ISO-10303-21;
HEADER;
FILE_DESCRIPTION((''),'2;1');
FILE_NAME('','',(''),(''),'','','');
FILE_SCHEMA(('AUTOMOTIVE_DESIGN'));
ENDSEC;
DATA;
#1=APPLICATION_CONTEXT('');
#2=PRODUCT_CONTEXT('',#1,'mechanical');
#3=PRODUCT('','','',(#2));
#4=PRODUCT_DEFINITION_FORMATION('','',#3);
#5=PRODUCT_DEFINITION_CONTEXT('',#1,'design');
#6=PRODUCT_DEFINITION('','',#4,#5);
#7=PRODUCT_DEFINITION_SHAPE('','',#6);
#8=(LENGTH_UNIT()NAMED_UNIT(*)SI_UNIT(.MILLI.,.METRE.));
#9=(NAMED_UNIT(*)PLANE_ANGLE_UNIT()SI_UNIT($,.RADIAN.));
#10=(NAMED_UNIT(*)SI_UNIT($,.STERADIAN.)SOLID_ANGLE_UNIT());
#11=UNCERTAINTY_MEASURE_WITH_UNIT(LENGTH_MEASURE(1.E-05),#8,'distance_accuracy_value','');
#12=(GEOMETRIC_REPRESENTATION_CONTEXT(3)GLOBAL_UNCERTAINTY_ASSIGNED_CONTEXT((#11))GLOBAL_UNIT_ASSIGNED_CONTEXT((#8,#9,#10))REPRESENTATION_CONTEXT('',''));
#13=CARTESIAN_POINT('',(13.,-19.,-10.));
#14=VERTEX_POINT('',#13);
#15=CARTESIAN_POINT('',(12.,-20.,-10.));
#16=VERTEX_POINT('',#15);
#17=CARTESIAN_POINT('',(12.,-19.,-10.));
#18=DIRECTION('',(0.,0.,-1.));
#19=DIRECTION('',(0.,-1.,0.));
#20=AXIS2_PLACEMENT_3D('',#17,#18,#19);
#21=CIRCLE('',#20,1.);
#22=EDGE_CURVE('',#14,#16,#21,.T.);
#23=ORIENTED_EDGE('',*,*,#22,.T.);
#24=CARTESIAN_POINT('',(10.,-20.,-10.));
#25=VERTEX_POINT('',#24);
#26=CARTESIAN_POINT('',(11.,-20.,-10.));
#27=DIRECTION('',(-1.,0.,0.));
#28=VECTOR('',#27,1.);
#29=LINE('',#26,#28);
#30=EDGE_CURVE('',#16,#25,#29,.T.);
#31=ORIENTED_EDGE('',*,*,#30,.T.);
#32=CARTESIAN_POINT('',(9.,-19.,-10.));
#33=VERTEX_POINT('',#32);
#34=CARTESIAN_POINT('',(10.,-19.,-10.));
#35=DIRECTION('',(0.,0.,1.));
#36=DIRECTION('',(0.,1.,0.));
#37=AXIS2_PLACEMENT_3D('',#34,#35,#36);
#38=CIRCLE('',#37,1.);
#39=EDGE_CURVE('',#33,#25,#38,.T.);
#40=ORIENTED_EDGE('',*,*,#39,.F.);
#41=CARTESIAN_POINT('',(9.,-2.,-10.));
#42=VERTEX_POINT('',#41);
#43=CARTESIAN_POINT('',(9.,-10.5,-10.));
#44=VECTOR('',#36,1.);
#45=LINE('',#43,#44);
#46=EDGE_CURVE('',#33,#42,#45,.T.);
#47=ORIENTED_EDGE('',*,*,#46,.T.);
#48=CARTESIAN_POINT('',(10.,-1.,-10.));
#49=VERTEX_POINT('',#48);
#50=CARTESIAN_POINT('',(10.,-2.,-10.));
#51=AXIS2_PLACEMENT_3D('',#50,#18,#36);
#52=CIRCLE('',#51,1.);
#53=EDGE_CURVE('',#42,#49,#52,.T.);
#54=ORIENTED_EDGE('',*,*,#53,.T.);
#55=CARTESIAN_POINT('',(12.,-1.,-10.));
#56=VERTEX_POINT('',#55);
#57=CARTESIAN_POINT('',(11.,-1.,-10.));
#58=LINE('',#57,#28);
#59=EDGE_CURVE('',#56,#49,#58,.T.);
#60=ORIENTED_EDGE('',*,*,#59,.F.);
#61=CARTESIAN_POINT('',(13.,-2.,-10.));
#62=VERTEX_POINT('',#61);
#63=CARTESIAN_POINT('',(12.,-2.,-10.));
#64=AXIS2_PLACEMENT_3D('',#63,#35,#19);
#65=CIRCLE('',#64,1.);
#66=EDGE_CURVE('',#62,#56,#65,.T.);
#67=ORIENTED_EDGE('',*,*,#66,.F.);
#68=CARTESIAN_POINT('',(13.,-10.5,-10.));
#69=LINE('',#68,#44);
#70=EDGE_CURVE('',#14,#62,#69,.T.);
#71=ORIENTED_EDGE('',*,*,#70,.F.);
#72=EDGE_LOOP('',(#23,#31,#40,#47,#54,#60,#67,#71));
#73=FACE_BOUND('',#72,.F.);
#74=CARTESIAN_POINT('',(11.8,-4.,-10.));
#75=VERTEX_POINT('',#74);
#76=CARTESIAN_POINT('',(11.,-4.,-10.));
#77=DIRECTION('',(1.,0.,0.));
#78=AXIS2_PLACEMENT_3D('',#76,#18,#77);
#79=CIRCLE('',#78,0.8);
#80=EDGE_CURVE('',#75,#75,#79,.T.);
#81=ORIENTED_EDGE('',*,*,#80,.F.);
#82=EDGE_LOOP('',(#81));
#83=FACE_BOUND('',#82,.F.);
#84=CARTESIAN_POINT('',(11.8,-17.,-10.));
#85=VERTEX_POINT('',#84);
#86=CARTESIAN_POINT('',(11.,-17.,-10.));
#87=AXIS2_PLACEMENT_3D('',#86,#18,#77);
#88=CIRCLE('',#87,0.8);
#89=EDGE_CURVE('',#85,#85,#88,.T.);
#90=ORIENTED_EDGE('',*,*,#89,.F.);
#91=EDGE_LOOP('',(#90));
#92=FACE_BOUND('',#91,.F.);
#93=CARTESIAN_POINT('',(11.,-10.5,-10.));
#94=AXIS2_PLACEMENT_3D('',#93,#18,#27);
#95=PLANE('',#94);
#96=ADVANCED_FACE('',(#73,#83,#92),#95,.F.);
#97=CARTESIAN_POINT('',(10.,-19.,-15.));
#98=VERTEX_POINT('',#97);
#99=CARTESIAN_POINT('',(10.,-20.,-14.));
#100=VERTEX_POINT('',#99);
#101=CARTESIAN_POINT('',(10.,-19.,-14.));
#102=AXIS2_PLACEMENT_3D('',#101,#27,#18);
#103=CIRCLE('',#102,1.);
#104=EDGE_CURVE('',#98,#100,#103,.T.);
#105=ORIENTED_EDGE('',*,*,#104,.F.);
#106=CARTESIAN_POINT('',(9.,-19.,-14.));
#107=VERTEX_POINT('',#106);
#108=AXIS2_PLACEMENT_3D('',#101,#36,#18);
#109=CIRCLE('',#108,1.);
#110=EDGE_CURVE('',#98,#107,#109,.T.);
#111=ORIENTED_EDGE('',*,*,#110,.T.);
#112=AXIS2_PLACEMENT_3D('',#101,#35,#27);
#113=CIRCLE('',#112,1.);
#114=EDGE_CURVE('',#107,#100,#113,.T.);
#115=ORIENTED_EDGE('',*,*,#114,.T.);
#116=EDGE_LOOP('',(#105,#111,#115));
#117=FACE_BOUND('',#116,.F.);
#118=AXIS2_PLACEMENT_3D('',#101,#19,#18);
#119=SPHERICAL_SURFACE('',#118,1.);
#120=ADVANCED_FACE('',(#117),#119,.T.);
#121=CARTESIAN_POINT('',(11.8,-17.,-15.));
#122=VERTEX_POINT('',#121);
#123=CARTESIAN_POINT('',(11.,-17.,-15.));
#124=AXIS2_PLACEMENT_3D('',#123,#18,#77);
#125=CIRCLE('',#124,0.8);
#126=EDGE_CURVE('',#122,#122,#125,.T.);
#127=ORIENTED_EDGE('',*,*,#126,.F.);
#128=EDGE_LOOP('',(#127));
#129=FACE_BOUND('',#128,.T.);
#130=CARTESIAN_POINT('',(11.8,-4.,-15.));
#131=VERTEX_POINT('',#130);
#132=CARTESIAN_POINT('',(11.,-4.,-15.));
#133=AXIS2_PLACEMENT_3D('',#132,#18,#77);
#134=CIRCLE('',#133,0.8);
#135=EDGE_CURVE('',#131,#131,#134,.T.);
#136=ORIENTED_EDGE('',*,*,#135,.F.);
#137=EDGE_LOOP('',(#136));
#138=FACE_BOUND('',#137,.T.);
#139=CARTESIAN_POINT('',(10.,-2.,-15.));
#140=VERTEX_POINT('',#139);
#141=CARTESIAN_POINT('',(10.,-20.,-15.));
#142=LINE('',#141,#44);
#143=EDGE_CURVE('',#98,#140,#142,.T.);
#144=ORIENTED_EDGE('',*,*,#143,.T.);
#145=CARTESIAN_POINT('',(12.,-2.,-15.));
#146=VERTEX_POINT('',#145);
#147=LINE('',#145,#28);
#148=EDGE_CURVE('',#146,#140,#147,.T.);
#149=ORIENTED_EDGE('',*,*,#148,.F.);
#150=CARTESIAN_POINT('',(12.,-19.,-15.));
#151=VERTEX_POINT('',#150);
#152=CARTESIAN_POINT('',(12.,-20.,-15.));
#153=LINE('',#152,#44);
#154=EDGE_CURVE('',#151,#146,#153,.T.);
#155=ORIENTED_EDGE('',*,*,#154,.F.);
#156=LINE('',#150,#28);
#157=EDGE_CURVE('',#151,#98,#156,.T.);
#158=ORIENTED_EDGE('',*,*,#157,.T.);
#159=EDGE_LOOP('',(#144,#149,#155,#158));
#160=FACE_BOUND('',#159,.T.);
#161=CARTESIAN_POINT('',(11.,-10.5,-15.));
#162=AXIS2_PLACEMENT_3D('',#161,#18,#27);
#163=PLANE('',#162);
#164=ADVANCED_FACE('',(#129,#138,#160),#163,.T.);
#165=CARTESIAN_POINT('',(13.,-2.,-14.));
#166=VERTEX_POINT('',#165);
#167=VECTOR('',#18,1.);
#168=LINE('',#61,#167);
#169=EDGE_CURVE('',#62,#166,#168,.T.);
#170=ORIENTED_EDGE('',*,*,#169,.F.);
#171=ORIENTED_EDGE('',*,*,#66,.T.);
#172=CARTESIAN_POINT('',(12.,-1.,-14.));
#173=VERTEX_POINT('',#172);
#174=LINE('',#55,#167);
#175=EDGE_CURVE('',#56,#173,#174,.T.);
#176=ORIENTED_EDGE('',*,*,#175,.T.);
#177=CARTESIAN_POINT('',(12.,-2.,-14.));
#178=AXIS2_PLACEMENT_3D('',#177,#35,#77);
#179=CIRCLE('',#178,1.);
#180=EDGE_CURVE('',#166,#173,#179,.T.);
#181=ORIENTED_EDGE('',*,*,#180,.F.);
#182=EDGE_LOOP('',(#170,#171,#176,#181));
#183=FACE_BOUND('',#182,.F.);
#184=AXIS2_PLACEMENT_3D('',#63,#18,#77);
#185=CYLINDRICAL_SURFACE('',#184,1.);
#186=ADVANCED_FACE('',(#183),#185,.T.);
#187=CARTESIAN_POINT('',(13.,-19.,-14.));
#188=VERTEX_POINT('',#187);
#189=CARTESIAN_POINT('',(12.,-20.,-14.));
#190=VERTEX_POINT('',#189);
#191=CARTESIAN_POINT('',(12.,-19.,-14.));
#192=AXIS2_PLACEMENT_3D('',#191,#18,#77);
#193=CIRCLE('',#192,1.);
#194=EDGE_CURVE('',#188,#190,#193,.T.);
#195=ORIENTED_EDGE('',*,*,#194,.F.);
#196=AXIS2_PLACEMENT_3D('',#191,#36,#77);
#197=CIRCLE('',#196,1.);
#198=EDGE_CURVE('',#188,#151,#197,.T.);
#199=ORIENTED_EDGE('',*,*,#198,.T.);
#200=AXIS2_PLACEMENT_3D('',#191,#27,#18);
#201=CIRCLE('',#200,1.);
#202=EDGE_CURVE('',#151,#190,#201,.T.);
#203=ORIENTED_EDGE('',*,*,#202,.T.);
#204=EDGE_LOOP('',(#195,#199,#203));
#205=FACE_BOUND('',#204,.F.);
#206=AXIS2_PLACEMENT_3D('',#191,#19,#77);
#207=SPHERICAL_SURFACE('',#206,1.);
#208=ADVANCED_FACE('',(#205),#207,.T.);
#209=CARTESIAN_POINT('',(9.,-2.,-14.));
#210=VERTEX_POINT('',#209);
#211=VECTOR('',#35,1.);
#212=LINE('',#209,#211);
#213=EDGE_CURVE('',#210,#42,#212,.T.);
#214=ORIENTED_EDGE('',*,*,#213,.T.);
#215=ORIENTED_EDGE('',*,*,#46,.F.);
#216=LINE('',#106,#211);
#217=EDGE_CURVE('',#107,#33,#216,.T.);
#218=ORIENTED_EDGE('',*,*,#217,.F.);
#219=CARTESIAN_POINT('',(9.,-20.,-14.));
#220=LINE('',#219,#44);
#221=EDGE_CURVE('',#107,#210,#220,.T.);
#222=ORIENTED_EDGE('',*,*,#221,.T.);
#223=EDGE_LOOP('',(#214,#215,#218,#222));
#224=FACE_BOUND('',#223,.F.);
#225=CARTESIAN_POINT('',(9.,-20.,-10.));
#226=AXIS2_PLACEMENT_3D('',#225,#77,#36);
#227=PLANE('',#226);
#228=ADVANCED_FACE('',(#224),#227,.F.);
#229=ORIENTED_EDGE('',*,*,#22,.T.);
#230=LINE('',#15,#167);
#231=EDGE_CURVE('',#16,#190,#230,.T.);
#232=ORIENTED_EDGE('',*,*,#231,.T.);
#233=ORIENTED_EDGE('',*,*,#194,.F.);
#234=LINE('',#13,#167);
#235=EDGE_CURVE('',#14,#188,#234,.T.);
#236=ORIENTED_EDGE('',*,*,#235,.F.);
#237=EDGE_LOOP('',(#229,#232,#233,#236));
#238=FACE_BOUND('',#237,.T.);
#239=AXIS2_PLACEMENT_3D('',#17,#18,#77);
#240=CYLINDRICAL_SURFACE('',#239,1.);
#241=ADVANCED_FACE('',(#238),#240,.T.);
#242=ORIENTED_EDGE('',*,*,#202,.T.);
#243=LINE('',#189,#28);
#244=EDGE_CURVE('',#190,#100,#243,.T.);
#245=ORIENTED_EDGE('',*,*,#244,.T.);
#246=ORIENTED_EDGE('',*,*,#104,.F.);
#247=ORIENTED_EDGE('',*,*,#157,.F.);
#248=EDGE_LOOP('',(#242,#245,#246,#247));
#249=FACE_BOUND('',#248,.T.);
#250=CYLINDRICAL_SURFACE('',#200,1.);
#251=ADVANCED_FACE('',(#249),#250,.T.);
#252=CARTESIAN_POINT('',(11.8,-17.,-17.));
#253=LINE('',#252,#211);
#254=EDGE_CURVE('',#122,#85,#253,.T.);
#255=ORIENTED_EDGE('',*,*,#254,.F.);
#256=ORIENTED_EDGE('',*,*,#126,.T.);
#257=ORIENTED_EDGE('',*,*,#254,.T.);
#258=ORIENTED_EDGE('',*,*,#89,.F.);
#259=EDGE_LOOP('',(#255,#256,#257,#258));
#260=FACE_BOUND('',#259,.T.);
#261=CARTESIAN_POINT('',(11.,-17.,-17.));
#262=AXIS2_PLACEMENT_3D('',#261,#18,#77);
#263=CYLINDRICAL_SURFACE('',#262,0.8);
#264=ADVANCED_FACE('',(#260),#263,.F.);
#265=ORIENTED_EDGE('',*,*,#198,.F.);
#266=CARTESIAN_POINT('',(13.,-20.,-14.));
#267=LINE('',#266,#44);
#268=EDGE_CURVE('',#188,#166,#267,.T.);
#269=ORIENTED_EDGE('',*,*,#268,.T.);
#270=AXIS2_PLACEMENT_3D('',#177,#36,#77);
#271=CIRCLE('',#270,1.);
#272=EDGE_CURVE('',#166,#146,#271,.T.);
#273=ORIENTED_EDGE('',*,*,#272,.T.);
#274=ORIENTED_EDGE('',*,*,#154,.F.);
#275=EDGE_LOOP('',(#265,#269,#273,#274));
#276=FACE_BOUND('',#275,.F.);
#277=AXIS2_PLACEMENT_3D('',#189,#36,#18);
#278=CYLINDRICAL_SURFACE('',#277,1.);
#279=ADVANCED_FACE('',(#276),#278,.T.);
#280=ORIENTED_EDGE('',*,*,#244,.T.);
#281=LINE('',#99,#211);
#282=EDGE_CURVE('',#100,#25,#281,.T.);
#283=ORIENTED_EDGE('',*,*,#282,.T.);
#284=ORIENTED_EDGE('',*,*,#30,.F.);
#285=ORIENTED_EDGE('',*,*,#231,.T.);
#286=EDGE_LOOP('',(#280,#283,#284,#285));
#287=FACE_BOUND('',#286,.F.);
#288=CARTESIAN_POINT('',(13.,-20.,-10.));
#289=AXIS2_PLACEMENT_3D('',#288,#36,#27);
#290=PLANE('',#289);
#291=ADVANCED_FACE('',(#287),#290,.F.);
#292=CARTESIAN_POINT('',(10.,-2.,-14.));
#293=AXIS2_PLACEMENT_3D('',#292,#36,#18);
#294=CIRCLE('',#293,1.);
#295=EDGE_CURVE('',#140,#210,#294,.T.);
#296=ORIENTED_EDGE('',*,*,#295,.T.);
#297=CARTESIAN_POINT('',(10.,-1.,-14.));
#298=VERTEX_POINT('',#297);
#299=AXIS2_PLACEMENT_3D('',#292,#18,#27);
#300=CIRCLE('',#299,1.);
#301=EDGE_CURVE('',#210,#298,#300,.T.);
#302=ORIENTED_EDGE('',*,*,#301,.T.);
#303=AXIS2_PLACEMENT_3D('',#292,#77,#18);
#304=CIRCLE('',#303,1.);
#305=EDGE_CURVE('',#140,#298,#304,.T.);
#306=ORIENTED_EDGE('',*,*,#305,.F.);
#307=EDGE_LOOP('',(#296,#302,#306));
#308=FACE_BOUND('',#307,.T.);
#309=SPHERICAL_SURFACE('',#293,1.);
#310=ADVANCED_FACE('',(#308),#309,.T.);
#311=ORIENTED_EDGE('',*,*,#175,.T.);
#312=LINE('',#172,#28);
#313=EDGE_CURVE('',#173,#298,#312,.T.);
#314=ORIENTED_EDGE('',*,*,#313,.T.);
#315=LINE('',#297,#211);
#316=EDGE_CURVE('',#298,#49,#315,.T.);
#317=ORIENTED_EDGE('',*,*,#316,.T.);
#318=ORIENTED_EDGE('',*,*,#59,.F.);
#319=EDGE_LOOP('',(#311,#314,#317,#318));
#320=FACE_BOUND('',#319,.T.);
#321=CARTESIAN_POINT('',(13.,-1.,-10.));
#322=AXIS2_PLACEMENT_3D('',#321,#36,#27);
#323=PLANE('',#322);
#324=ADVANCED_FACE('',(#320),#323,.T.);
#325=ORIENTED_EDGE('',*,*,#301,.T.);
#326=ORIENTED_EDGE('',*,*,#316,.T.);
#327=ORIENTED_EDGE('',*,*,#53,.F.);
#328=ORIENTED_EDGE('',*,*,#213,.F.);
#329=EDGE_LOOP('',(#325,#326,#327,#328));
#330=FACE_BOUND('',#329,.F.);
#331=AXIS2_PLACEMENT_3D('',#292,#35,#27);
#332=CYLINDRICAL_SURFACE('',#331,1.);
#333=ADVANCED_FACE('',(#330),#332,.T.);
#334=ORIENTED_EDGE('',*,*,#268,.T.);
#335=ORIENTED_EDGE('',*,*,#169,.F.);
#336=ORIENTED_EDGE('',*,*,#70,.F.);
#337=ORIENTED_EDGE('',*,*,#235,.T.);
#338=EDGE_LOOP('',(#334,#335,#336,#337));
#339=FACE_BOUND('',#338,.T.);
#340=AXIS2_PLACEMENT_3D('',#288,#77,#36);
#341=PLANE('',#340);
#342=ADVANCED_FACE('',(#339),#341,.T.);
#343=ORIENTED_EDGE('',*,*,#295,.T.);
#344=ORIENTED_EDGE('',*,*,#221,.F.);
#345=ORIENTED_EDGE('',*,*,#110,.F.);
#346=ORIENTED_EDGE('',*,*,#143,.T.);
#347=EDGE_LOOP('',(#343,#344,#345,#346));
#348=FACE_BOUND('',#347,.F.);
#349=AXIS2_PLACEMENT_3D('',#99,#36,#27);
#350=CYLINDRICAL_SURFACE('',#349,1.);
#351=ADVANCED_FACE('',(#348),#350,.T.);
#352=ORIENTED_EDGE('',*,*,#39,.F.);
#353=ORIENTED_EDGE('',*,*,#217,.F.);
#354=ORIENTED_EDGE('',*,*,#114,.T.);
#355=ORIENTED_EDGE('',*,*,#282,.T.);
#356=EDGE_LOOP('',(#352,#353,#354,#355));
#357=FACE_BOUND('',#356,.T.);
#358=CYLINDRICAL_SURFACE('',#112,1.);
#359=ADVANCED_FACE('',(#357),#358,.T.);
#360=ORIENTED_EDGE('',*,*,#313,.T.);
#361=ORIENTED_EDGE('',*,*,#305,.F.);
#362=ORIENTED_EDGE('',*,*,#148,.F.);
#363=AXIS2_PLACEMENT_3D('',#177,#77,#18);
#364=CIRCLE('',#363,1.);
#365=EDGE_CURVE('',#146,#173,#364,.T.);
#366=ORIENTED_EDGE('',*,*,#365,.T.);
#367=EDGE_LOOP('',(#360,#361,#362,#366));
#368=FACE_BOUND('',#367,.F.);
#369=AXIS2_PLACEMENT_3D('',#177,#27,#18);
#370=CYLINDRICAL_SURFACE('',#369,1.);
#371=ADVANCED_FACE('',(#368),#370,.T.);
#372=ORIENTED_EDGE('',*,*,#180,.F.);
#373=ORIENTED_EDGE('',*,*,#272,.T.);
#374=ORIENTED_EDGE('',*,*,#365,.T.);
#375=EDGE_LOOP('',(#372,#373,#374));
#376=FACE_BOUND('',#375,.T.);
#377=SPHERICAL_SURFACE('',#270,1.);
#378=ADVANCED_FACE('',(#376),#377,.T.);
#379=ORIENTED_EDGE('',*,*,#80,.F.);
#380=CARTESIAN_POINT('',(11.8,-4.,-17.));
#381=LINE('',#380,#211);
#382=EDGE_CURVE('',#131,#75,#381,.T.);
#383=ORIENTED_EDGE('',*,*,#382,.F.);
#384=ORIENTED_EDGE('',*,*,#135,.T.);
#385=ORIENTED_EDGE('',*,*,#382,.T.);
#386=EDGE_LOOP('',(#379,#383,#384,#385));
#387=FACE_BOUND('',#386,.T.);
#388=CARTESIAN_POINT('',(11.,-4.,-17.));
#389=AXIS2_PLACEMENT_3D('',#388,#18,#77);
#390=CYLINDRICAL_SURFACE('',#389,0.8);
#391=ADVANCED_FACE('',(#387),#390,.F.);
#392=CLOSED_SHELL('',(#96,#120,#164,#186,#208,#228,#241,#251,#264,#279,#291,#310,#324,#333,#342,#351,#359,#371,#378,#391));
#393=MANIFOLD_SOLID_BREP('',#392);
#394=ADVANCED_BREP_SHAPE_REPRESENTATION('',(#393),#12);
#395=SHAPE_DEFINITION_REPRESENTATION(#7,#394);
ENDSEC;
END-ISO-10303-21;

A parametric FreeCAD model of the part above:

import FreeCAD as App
import Part
import Sketcher
from FreeCAD import Vector


def edges_at(feature, points):
    """Names of the edges that pass closest to the given points."""
    edges = feature.Shape.Edges
    near = lambda p: min(range(len(edges)), key=lambda i: edges[i].distToShape(Part.Vertex(*p))[0])
    return sorted({f"Edge{near(p) + 1}" for p in points})


def add_polygon(sketch, points):
    """Adds a closed chain of lines whose ends are joined by coincident constraints."""
    first, n = sketch.GeometryCount, len(points)
    for a, b in zip(points, points[1:] + points[:1]):
        sketch.addGeometry(Part.LineSegment(App.Vector(*a, 0), App.Vector(*b, 0)), False)
    for i in range(n):
        sketch.addConstraint(Sketcher.Constraint("Coincident", first + i, 2, first + (i + 1) % n, 1))

doc = App.newDocument("Part")
params = doc.addObject("Spreadsheet::Sheet", "Params")
for row, (alias, value) in enumerate([
    ("sketch1_diameter", "1.6 mm"),
    ("pad1_length", "10 mm"),
    ("sketch2_diameter", "1.6 mm"),
    ("pad2_length", "10 mm"),
    ("sketch3_diameter", "1.5 mm"),
    ("pad3_length", "10 mm"),
    ("sketch4_diameter", "1.5 mm"),
    ("pad4_length", "10 mm"),
    ("sketch5_width", "4 mm"),
    ("sketch5_height", "19 mm"),
    ("pad5_length", "5 mm"),
    ("fillet_radius", "1 mm"),
    ("fillet2_radius", "1 mm"),
    ("fillet3_radius", "1 mm"),
    ("fillet4_radius", "1 mm"),
], start=1):
    params.set(f"A{row}", alias)
    params.set(f"B{row}", "=" + value)
    params.setAlias(f"B{row}", alias)

body = doc.addObject("PartDesign::Body", "Body")

sketch1 = doc.addObject("Sketcher::SketchObject", "Sketch")
body.addObject(sketch1)
sketch1.AttachmentSupport = (doc.XY_Plane, [""])
sketch1.MapMode = "FlatFace"
sketch1.AttachmentOffset = App.Placement(Vector(0, 0, -17), App.Rotation())
sketch1.addGeometry(Part.Circle(Vector(11, -17, 0), Vector(0, 0, 1), 0.8), False)
sketch1.addConstraint(Sketcher.Constraint("Diameter", 0, 1.6))
sketch1.addConstraint(Sketcher.Constraint("DistanceX", -1, 1, 0, 3, 11.0))
sketch1.addConstraint(Sketcher.Constraint("DistanceY", 0, 3, -1, 1, 17.0))
sketch1.setExpression("Constraints[0]", "Params.sketch1_diameter")
pad1 = doc.addObject("PartDesign::Pad", "Pad")
body.addObject(pad1)
pad1.Profile = sketch1
pad1.setExpression("Length", "Params.pad1_length")
body2 = doc.addObject("PartDesign::Body", "Body001")

sketch2 = doc.addObject("Sketcher::SketchObject", "Sketch001")
body2.addObject(sketch2)
sketch2.AttachmentSupport = (doc.getObject("XY_Plane001"), [""])
sketch2.MapMode = "FlatFace"
sketch2.AttachmentOffset = App.Placement(Vector(0, 0, -17), App.Rotation())
sketch2.addGeometry(Part.Circle(Vector(11, -4, 0), Vector(0, 0, 1), 0.8), False)
sketch2.addConstraint(Sketcher.Constraint("Diameter", 0, 1.6))
sketch2.addConstraint(Sketcher.Constraint("DistanceX", -1, 1, 0, 3, 11.0))
sketch2.addConstraint(Sketcher.Constraint("DistanceY", 0, 3, -1, 1, 4.0))
sketch2.setExpression("Constraints[0]", "Params.sketch2_diameter")
pad2 = doc.addObject("PartDesign::Pad", "Pad001")
body2.addObject(pad2)
pad2.Profile = sketch2
pad2.setExpression("Length", "Params.pad2_length")
body3 = doc.addObject("PartDesign::Body", "Body002")

sketch3 = doc.addObject("Sketcher::SketchObject", "Sketch002")
body3.addObject(sketch3)
sketch3.AttachmentSupport = (doc.getObject("XY_Plane002"), [""])
sketch3.MapMode = "FlatFace"
sketch3.AttachmentOffset = App.Placement(Vector(0, 0, 48), App.Rotation())
sketch3.addGeometry(Part.Circle(Vector(-39, 66, 0), Vector(0, 0, 1), 0.8), False)
sketch3.addConstraint(Sketcher.Constraint("Diameter", 0, 1.5))
sketch3.addConstraint(Sketcher.Constraint("DistanceX", 0, 3, -1, 1, 39.0))
sketch3.addConstraint(Sketcher.Constraint("DistanceY", -1, 1, 0, 3, 66.0))
sketch3.setExpression("Constraints[0]", "Params.sketch3_diameter")
pad3 = doc.addObject("PartDesign::Pad", "Pad002")
body3.addObject(pad3)
pad3.Profile = sketch3
pad3.setExpression("Length", "Params.pad3_length")
body4 = doc.addObject("PartDesign::Body", "Body003")

sketch4 = doc.addObject("Sketcher::SketchObject", "Sketch003")
body4.addObject(sketch4)
sketch4.AttachmentSupport = (doc.getObject("XY_Plane003"), [""])
sketch4.MapMode = "FlatFace"
sketch4.AttachmentOffset = App.Placement(Vector(0, 0, 48), App.Rotation())
sketch4.addGeometry(Part.Circle(Vector(-39, 53, 0), Vector(0, 0, 1), 0.8), False)
sketch4.addConstraint(Sketcher.Constraint("Diameter", 0, 1.5))
sketch4.addConstraint(Sketcher.Constraint("DistanceX", 0, 3, -1, 1, 39.0))
sketch4.addConstraint(Sketcher.Constraint("DistanceY", -1, 1, 0, 3, 53.0))
sketch4.setExpression("Constraints[0]", "Params.sketch4_diameter")
pad4 = doc.addObject("PartDesign::Pad", "Pad003")
body4.addObject(pad4)
pad4.Profile = sketch4
pad4.setExpression("Length", "Params.pad4_length")
body5 = doc.addObject("PartDesign::Body", "Body004")

sketch5 = doc.addObject("Sketcher::SketchObject", "Sketch004")
body5.addObject(sketch5)
sketch5.AttachmentSupport = (doc.getObject("XY_Plane004"), [""])
sketch5.MapMode = "FlatFace"
sketch5.AttachmentOffset = App.Placement(Vector(0, 0, 45), App.Rotation())
add_polygon(sketch5, [(-2, 69), (-2, 50), (2, 50), (2, 69)])
sketch5.addConstraint(Sketcher.Constraint("Vertical", 0))
sketch5.addConstraint(Sketcher.Constraint("Horizontal", 1))
sketch5.addConstraint(Sketcher.Constraint("Vertical", 2))
sketch5.addConstraint(Sketcher.Constraint("Horizontal", 3))
sketch5.addConstraint(Sketcher.Constraint("DistanceX", 1, 1, 1, 2, 4.0))
sketch5.addConstraint(Sketcher.Constraint("DistanceY", 0, 2, 0, 1, 19.0))
sketch5.addConstraint(Sketcher.Constraint("DistanceX", 0, 2, -1, 1, 2.0))
sketch5.addConstraint(Sketcher.Constraint("DistanceY", -1, 1, 0, 2, 50.0))
sketch5.setExpression("Constraints[8]", "Params.sketch5_width")
sketch5.setExpression("Constraints[9]", "Params.sketch5_height")
pad5 = doc.addObject("PartDesign::Pad", "Pad004")
body5.addObject(pad5)
pad5.Profile = sketch5
pad5.setExpression("Length", "Params.pad5_length")
doc.recompute()

fillet = doc.addObject("PartDesign::Fillet", "Fillet")
body5.addObject(fillet)
fillet.Base = (pad5, edges_at(pad5, [(2, 59.5, 50)]))
fillet.setExpression("Radius", "Params.fillet_radius")
doc.recompute()

fillet2 = doc.addObject("PartDesign::Fillet", "Fillet001")
body5.addObject(fillet2)
fillet2.Base = (fillet, edges_at(fillet, [(-2, 59.5, 50)]))
fillet2.setExpression("Radius", "Params.fillet2_radius")
doc.recompute()

fillet3 = doc.addObject("PartDesign::Fillet", "Fillet002")
body5.addObject(fillet3)
fillet3.Base = (fillet2, edges_at(fillet2, [(0, 69, 50)]))
fillet3.setExpression("Radius", "Params.fillet3_radius")
doc.recompute()

fillet4 = doc.addObject("PartDesign::Fillet", "Fillet003")
body5.addObject(fillet4)
fillet4.Base = (fillet3, edges_at(fillet3, [(0, 50, 50)]))
fillet4.setExpression("Radius", "Params.fillet4_radius")
body6 = doc.addObject("PartDesign::Body", "Body005")
doc.recompute()

body5.Placement = App.Placement(Vector(-39, 0, 0), App.Rotation(Vector(0, 0, 1), 0))
boolean = doc.addObject("PartDesign::Boolean", "Boolean")
body6.addObject(boolean)
boolean.Type = "Fuse"
boolean.addObjects([body5])
doc.recompute()

boolean2 = doc.addObject("PartDesign::Boolean", "Boolean001")
body6.addObject(boolean2)
boolean2.Type = "Cut"
boolean2.addObjects([body4])
doc.recompute()

boolean3 = doc.addObject("PartDesign::Boolean", "Boolean002")
body6.addObject(boolean3)
boolean3.Type = "Cut"
boolean3.addObjects([body3])
body7 = doc.addObject("PartDesign::Body", "Body006")
doc.recompute()

body6.Placement = App.Placement(Vector(-28, -70, 35), App.Rotation(Vector(0, 1, 0), 180))
boolean4 = doc.addObject("PartDesign::Boolean", "Boolean003")
body7.addObject(boolean4)
boolean4.Type = "Fuse"
boolean4.addObjects([body6])
doc.recompute()

boolean5 = doc.addObject("PartDesign::Boolean", "Boolean004")
body7.addObject(boolean5)
boolean5.Type = "Cut"
boolean5.addObjects([body2])
doc.recompute()

boolean6 = doc.addObject("PartDesign::Boolean", "Boolean005")
body7.addObject(boolean6)
boolean6.Type = "Cut"
boolean6.addObjects([body])

doc.recompute()
